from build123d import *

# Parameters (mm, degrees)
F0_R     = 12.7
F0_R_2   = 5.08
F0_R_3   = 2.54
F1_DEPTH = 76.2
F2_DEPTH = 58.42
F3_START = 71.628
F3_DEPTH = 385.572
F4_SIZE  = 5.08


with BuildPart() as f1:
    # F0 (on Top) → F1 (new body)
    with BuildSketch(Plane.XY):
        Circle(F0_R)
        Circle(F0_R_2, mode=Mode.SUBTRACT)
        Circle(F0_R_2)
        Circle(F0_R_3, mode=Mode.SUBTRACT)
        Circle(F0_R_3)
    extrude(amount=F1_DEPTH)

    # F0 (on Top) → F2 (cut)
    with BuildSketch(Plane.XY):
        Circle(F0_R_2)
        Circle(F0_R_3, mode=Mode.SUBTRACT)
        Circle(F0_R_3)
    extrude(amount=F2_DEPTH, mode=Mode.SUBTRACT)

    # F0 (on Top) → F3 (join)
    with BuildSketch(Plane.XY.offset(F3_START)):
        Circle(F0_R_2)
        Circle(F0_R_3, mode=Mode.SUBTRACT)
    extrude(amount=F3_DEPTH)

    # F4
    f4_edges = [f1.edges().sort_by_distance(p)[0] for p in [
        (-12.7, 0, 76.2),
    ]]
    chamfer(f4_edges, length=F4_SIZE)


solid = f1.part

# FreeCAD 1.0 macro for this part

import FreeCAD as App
import Part
import Sketcher

V = App.Vector
Q = App.Units.Quantity


def edges_at(feature, points):
    """Names of the edges that pass closest to the given points."""
    edges = feature.Shape.Edges
    near = lambda p: min(range(len(edges)), key=lambda i: edges[i].distToShape(Part.Vertex(*p))[0])
    return sorted({f"Edge{near(p) + 1}" for p in points})

doc = App.newDocument("Part")
body = doc.addObject("PartDesign::Body", "Body")

sketch1 = body.newObject("Sketcher::SketchObject", "Sketch")
sketch1.AttachmentSupport = (doc.getObject("XY_Plane"), [""])
sketch1.MapMode = "FlatFace"
sketch1.addGeometry(Part.Circle(V(0, 0, 0), V(0, 0, 1), 12.7), False)
sketch1.addConstraint([
    Sketcher.Constraint("Coincident", 0, 3, -1, 1),
    Sketcher.Constraint("Diameter", 0, Q("1 in")),
])
pad1 = body.newObject("PartDesign::Pad", "Pad")
pad1.Profile = sketch1
pad1.Length = Q("3 in")

sketch2 = body.newObject("Sketcher::SketchObject", "Sketch001")
sketch2.AttachmentSupport = (doc.getObject("XY_Plane"), [""])
sketch2.MapMode = "FlatFace"
sketch2.addGeometry(Part.Circle(V(0, 0, 0), V(0, 0, 1), 5.08), False)
sketch2.addConstraint([
    Sketcher.Constraint("Coincident", 0, 3, -1, 1),
    Sketcher.Constraint("Diameter", 0, Q("0.4 in")),
])
pocket1 = body.newObject("PartDesign::Pocket", "Pocket")
pocket1.Profile = sketch2
pocket1.Length = Q("2.3 in")
pocket1.Reversed = True

sketch3 = body.newObject("Sketcher::SketchObject", "Sketch002")
sketch3.AttachmentSupport = (doc.getObject("XY_Plane"), [""])
sketch3.MapMode = "FlatFace"
sketch3.AttachmentOffset = App.Placement(V(0, 0, 2.82 * 25.4), App.Rotation())
sketch3.addGeometry([
    Part.Circle(V(0, 0, 0), V(0, 0, 1), 5.08),
    Part.Circle(V(0, 0, 0), V(0, 0, 1), 2.54),
], False)
sketch3.addConstraint([
    Sketcher.Constraint("Coincident", 0, 3, -1, 1),
    Sketcher.Constraint("Coincident", 1, 3, -1, 1),
    Sketcher.Constraint("Diameter", 0, Q("0.4 in")),
    Sketcher.Constraint("Diameter", 1, Q("0.2 in")),
])
pad2 = body.newObject("PartDesign::Pad", "Pad001")
pad2.Profile = sketch3
pad2.Length = Q("15.18 in")
doc.recompute()

chamfer = body.newObject("PartDesign::Chamfer", "Chamfer")
chamfer.Base = (pad2, edges_at(pad2, [(-12.7, 0, 76.2)]))
chamfer.Size = Q("0.2 in")

doc.recompute()
